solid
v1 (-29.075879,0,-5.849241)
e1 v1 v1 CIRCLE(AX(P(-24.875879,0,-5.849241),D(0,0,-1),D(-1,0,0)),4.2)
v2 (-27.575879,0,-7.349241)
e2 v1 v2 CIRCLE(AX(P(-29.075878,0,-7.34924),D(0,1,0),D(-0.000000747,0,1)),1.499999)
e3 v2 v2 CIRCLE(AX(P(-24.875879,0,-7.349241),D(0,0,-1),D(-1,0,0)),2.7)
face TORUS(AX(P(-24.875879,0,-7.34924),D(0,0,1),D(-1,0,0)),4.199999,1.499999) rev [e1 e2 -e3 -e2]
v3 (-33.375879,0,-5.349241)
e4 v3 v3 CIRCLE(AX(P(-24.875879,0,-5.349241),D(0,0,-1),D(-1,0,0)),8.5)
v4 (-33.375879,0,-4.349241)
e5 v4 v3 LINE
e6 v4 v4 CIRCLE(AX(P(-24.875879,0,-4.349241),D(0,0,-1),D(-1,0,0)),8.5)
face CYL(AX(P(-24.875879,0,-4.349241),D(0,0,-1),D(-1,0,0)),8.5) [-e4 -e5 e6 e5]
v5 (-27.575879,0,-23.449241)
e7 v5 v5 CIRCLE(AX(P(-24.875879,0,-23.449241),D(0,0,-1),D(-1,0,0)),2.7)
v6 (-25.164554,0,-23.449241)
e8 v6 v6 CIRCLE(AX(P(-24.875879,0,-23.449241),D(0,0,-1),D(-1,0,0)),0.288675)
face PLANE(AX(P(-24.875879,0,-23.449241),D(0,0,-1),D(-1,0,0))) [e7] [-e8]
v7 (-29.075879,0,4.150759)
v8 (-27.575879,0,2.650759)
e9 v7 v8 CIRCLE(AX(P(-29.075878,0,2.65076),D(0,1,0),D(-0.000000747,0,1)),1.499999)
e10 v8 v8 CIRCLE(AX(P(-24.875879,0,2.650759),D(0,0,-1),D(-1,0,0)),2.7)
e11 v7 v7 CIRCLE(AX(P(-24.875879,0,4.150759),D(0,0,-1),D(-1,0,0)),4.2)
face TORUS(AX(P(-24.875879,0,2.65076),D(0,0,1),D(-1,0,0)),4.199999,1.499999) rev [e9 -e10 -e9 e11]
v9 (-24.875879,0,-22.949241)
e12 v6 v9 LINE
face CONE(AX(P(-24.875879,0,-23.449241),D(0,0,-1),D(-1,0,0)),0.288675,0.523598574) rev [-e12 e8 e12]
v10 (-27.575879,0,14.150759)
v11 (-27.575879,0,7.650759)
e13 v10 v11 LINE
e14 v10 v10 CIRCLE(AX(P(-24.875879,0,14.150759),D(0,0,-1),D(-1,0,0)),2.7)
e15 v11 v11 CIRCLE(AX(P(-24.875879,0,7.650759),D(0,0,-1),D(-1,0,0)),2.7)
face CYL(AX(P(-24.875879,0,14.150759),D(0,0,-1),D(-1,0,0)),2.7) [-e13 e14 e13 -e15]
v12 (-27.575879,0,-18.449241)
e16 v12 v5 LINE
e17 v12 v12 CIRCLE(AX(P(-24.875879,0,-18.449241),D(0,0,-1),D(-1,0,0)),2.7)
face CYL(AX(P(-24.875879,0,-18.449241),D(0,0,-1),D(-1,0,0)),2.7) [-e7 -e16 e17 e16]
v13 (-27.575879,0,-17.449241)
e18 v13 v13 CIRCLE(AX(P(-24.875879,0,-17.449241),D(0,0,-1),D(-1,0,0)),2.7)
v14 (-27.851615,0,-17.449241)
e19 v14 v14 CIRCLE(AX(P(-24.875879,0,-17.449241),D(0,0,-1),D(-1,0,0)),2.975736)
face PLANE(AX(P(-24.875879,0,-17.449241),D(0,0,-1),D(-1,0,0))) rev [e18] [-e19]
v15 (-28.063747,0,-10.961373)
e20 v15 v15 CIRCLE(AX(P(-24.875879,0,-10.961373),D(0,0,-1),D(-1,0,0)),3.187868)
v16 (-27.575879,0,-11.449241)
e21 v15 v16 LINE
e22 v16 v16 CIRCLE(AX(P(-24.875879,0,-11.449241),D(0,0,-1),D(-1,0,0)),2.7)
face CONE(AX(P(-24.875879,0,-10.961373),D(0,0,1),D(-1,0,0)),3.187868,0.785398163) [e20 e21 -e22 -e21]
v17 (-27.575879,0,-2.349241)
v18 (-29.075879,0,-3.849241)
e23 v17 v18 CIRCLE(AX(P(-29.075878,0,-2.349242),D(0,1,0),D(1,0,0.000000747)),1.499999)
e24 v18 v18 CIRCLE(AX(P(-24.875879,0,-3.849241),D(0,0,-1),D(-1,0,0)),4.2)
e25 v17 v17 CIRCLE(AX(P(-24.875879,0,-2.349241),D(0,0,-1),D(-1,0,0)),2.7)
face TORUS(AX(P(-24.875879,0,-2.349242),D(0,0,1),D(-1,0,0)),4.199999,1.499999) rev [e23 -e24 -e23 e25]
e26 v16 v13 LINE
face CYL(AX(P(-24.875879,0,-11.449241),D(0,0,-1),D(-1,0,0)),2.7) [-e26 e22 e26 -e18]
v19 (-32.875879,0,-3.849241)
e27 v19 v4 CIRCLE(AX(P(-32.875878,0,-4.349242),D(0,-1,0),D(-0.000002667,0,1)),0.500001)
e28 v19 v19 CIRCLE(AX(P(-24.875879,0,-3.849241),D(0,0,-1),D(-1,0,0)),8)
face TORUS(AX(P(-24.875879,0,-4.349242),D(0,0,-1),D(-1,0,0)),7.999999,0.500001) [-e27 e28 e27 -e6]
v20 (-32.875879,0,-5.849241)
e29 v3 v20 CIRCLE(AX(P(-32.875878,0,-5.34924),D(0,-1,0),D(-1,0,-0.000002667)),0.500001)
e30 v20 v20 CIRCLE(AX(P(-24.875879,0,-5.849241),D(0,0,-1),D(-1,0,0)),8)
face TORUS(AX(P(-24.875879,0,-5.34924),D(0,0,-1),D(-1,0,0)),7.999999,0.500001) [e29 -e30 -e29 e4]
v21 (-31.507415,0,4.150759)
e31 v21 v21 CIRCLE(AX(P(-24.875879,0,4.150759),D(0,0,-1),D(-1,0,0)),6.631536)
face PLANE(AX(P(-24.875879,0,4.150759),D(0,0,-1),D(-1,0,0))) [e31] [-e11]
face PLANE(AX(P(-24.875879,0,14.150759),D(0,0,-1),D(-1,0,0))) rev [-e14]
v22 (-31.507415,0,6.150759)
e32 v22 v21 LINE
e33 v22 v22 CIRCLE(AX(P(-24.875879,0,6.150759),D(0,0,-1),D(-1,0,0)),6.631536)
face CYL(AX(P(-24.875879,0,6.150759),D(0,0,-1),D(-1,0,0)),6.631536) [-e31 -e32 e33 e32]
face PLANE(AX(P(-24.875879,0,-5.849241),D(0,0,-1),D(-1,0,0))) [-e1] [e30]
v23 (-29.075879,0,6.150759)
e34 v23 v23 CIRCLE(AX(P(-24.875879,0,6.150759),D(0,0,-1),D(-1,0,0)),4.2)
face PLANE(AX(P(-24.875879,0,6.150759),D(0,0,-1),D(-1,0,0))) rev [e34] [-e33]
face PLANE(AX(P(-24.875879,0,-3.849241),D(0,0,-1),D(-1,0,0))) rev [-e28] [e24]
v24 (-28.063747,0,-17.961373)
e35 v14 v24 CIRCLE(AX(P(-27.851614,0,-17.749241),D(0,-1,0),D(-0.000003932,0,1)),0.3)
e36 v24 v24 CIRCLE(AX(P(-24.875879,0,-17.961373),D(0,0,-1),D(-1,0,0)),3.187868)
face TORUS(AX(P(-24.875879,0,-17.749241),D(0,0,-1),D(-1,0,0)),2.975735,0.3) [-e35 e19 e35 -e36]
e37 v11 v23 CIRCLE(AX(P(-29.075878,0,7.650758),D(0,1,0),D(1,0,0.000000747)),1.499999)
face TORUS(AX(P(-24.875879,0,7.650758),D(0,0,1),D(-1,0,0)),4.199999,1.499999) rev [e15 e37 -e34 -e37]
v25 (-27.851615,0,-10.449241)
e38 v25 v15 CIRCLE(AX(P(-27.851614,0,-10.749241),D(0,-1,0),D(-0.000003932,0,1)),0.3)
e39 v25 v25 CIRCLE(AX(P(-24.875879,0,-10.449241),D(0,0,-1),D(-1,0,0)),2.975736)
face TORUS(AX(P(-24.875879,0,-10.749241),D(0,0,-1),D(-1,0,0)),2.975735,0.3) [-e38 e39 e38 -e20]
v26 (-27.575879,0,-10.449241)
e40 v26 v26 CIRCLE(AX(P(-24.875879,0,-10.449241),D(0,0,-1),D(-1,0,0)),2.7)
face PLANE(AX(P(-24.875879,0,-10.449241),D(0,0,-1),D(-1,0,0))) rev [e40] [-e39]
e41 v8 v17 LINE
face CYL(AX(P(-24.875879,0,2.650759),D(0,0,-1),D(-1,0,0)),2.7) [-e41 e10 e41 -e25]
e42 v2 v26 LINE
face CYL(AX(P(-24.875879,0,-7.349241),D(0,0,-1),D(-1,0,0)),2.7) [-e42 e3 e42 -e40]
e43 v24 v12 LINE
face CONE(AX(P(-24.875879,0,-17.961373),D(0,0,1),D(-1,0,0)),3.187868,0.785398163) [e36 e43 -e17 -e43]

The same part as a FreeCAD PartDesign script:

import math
import FreeCAD as App
import Part
import Sketcher
from FreeCAD import Vector
Q = App.Units.Quantity

doc = App.newDocument("Part")
body = doc.addObject("PartDesign::Body", "Body")

sketch1 = body.newObject("Sketcher::SketchObject", "Sketch")
sketch1.AttachmentSupport = (doc.getObject("XZ_Plane"), [""])
sketch1.MapMode = "FlatFace"
sketch1.addGeometry([
    Part.LineSegment(Vector(-27.58, -18.45, 0), Vector(-27.58, -23.45, 0)),
    Part.LineSegment(Vector(-27.58, -23.45, 0), Vector(-25.16, -23.45, 0)),
    Part.LineSegment(Vector(-25.16, -23.45, 0), Vector(-24.88, -22.95, 0)),
    Part.LineSegment(Vector(-24.88, -22.95, 0), Vector(-24.88, 14.15, 0)),
    Part.LineSegment(Vector(-24.88, 14.15, 0), Vector(-27.58, 14.15, 0)),
    Part.LineSegment(Vector(-27.58, 14.15, 0), Vector(-27.58, 7.65, 0)),
    Part.ArcOfCircle(Part.Circle(Vector(-29.08, 7.65, 0), Vector(0, 0, 1), 1.5), math.radians(-90), math.radians(0)),
    Part.LineSegment(Vector(-29.08, 6.15, 0), Vector(-31.51, 6.15, 0)),
    Part.LineSegment(Vector(-31.51, 6.15, 0), Vector(-31.51, 4.15, 0)),
    Part.LineSegment(Vector(-31.51, 4.15, 0), Vector(-29.08, 4.15, 0)),
    Part.ArcOfCircle(Part.Circle(Vector(-29.08, 2.65, 0), Vector(0, 0, 1), 1.5), math.radians(0), math.radians(90)),
    Part.LineSegment(Vector(-27.58, 2.65, 0), Vector(-27.58, -2.35, 0)),
    Part.ArcOfCircle(Part.Circle(Vector(-29.08, -2.35, 0), Vector(0, 0, 1), 1.5), math.radians(-90), math.radians(0)),
    Part.LineSegment(Vector(-29.08, -3.85, 0), Vector(-32.88, -3.85, 0)),
    Part.ArcOfCircle(Part.Circle(Vector(-32.88, -4.35, 0), Vector(0, 0, 1), 0.5), math.radians(90), math.radians(180)),
    Part.LineSegment(Vector(-33.38, -4.35, 0), Vector(-33.38, -5.35, 0)),
    Part.ArcOfCircle(Part.Circle(Vector(-32.88, -5.35, 0), Vector(0, 0, 1), 0.5), math.radians(-180), math.radians(-90)),
    Part.LineSegment(Vector(-32.88, -5.85, 0), Vector(-29.08, -5.85, 0)),
    Part.ArcOfCircle(Part.Circle(Vector(-29.08, -7.35, 0), Vector(0, 0, 1), 1.5), math.radians(0), math.radians(90)),
    Part.LineSegment(Vector(-27.58, -7.35, 0), Vector(-27.58, -10.45, 0)),
    Part.LineSegment(Vector(-27.58, -10.45, 0), Vector(-27.85, -10.45, 0)),
    Part.ArcOfCircle(Part.Circle(Vector(-27.85, -10.75, 0), Vector(0, 0, 1), 0.3), math.radians(90), math.radians(225)),
    Part.LineSegment(Vector(-28.06, -10.96, 0), Vector(-27.58, -11.45, 0)),
    Part.LineSegment(Vector(-27.58, -11.45, 0), Vector(-27.58, -17.45, 0)),
    Part.LineSegment(Vector(-27.58, -17.45, 0), Vector(-27.85, -17.45, 0)),
    Part.ArcOfCircle(Part.Circle(Vector(-27.85, -17.75, 0), Vector(0, 0, 1), 0.3), math.radians(90), math.radians(225)),
    Part.LineSegment(Vector(-28.06, -17.96, 0), Vector(-27.58, -18.45, 0)),
], False)
sketch1.addGeometry(Part.LineSegment(Vector(-24.88, 14.15, 0), Vector(-24.88, -23.45, 0)), True)
sketch1.addConstraint([
    Sketcher.Constraint("Coincident", 0, 2, 1, 1),
    Sketcher.Constraint("Coincident", 1, 2, 2, 1),
    Sketcher.Constraint("Coincident", 2, 2, 3, 1),
    Sketcher.Constraint("Coincident", 3, 2, 4, 1),
    Sketcher.Constraint("Coincident", 4, 2, 5, 1),
    Sketcher.Constraint("Tangent", 5, 2, 6, 2),
    Sketcher.Constraint("Tangent", 6, 1, 7, 1),
    Sketcher.Constraint("Coincident", 7, 2, 8, 1),
    Sketcher.Constraint("Coincident", 8, 2, 9, 1),
    Sketcher.Constraint("Tangent", 9, 2, 10, 2),
    Sketcher.Constraint("Tangent", 10, 1, 11, 1),
    Sketcher.Constraint("Tangent", 11, 2, 12, 2),
    Sketcher.Constraint("Tangent", 12, 1, 13, 1),
    Sketcher.Constraint("Coincident", 13, 2, 14, 1),
    Sketcher.Constraint("Coincident", 14, 2, 15, 1),
    Sketcher.Constraint("Coincident", 15, 2, 16, 1),
    Sketcher.Constraint("Coincident", 16, 2, 17, 1),
    Sketcher.Constraint("Tangent", 17, 2, 18, 2),
    Sketcher.Constraint("Tangent", 18, 1, 19, 1),
    Sketcher.Constraint("Coincident", 19, 2, 20, 1),
    Sketcher.Constraint("Coincident", 20, 2, 21, 1),
    Sketcher.Constraint("Coincident", 21, 2, 22, 1),
    Sketcher.Constraint("Coincident", 22, 2, 23, 1),
    Sketcher.Constraint("Coincident", 23, 2, 24, 1),
    Sketcher.Constraint("Coincident", 24, 2, 25, 1),
    Sketcher.Constraint("Coincident", 25, 2, 26, 1),
    Sketcher.Constraint("Coincident", 26, 2, 0, 1),
    Sketcher.Constraint("Vertical", 0),
    Sketcher.Constraint("Horizontal", 1),
    Sketcher.Constraint("Vertical", 3),
    Sketcher.Constraint("Horizontal", 4),
    Sketcher.Constraint("Vertical", 5),
    Sketcher.Constraint("Horizontal", 7),
    Sketcher.Constraint("Vertical", 8),
    Sketcher.Constraint("Horizontal", 9),
    Sketcher.Constraint("Vertical", 11),
    Sketcher.Constraint("Horizontal", 13),
    Sketcher.Constraint("Vertical", 15),
    Sketcher.Constraint("Horizontal", 17),
    Sketcher.Constraint("Vertical", 19),
    Sketcher.Constraint("Horizontal", 20),
    Sketcher.Constraint("Vertical", 23),
    Sketcher.Constraint("Horizontal", 24),
    Sketcher.Constraint("Vertical", 27),
    Sketcher.Constraint("Coincident", 27, 1, 3, 2),
    Sketcher.Constraint("Equal", 6, 10),
    Sketcher.Constraint("Equal", 10, 12),
    Sketcher.Constraint("Equal", 14, 16),
    Sketcher.Constraint("Equal", 12, 18),
    Sketcher.Constraint("Equal", 21, 25),
    Sketcher.Constraint("Parallel", 22, 26),
    Sketcher.Constraint("Horizontal", 16, 3, 15, 2),
    Sketcher.Constraint("Horizontal", 1, 2, 27, 2),
    Sketcher.Constraint("Vertical", 6, 3, 10, 3),
    Sketcher.Constraint("Vertical", 12, 3, 18, 3),
    Sketcher.Constraint("Vertical", 21, 3, 25, 3),
    Sketcher.Constraint("Vertical", 0, 2, 4, 2),
    Sketcher.Constraint("Vertical", 16, 3, 13, 2),
    Sketcher.Constraint("Vertical", 13, 2, 16, 2),
    Sketcher.Constraint("Vertical", 25, 3, 20, 2),
    Sketcher.Constraint("Vertical", 19, 2, 22, 2),
    Sketcher.Constraint("Vertical", 20, 2, 24, 2),
    Sketcher.Constraint("Vertical", 21, 2, 25, 2),
    Sketcher.Constraint("Equal", 0, 11),
    Sketcher.Constraint("Radius", 6, 1.499999),
    Sketcher.Constraint("Radius", 14, 0.500001),
    Sketcher.Constraint("Radius", 21, 0.3),
    Sketcher.Constraint("DistanceY", 0, 2, 0, 1, 5.0),
    Sketcher.Constraint("DistanceY", 8, 2, 8, 1, 2.0),
    Sketcher.Constraint("DistanceY", 15, 2, 15, 1, 1.0),
    Sketcher.Constraint("DistanceY", 23, 2, 23, 1, 6.0),
    Sketcher.Constraint("Angle", 2, Q("60.000012 deg")),
    Sketcher.Constraint("Angle", 22, Q("-45 deg")),
    Sketcher.Constraint("DistanceX", 4, 2, 4, 1, 2.7),
    Sketcher.Constraint("DistanceX", 13, 2, 13, 1, 3.8),
    Sketcher.Constraint("DistanceY", 3, 1, 3, 2, 37.1),
    Sketcher.Constraint("DistanceY", 5, 2, 5, 1, 6.5),
    Sketcher.Constraint("DistanceY", 19, 2, 19, 1, 3.1),
    Sketcher.Constraint("DistanceY", 27, 2, 27, 1, 37.6),
    Sketcher.Constraint("DistanceY", 16, 3, 10, 3, 8.0),
    Sketcher.Constraint("Distance", 22, 0.68995),
    Sketcher.Constraint("DistanceX", 7, 2, 7, 1, 2.431536),
    Sketcher.Constraint("DistanceY", -1, 1, 10, 3, 2.65076),
    Sketcher.Constraint("DistanceX", 0, 2, -1, 1, 27.575879),
])
revolution = body.newObject("PartDesign::Revolution", "Revolution")
revolution.Profile = sketch1
revolution.ReferenceAxis = (sketch1, ["Axis0"])
revolution.Angle = 360

doc.recompute()
